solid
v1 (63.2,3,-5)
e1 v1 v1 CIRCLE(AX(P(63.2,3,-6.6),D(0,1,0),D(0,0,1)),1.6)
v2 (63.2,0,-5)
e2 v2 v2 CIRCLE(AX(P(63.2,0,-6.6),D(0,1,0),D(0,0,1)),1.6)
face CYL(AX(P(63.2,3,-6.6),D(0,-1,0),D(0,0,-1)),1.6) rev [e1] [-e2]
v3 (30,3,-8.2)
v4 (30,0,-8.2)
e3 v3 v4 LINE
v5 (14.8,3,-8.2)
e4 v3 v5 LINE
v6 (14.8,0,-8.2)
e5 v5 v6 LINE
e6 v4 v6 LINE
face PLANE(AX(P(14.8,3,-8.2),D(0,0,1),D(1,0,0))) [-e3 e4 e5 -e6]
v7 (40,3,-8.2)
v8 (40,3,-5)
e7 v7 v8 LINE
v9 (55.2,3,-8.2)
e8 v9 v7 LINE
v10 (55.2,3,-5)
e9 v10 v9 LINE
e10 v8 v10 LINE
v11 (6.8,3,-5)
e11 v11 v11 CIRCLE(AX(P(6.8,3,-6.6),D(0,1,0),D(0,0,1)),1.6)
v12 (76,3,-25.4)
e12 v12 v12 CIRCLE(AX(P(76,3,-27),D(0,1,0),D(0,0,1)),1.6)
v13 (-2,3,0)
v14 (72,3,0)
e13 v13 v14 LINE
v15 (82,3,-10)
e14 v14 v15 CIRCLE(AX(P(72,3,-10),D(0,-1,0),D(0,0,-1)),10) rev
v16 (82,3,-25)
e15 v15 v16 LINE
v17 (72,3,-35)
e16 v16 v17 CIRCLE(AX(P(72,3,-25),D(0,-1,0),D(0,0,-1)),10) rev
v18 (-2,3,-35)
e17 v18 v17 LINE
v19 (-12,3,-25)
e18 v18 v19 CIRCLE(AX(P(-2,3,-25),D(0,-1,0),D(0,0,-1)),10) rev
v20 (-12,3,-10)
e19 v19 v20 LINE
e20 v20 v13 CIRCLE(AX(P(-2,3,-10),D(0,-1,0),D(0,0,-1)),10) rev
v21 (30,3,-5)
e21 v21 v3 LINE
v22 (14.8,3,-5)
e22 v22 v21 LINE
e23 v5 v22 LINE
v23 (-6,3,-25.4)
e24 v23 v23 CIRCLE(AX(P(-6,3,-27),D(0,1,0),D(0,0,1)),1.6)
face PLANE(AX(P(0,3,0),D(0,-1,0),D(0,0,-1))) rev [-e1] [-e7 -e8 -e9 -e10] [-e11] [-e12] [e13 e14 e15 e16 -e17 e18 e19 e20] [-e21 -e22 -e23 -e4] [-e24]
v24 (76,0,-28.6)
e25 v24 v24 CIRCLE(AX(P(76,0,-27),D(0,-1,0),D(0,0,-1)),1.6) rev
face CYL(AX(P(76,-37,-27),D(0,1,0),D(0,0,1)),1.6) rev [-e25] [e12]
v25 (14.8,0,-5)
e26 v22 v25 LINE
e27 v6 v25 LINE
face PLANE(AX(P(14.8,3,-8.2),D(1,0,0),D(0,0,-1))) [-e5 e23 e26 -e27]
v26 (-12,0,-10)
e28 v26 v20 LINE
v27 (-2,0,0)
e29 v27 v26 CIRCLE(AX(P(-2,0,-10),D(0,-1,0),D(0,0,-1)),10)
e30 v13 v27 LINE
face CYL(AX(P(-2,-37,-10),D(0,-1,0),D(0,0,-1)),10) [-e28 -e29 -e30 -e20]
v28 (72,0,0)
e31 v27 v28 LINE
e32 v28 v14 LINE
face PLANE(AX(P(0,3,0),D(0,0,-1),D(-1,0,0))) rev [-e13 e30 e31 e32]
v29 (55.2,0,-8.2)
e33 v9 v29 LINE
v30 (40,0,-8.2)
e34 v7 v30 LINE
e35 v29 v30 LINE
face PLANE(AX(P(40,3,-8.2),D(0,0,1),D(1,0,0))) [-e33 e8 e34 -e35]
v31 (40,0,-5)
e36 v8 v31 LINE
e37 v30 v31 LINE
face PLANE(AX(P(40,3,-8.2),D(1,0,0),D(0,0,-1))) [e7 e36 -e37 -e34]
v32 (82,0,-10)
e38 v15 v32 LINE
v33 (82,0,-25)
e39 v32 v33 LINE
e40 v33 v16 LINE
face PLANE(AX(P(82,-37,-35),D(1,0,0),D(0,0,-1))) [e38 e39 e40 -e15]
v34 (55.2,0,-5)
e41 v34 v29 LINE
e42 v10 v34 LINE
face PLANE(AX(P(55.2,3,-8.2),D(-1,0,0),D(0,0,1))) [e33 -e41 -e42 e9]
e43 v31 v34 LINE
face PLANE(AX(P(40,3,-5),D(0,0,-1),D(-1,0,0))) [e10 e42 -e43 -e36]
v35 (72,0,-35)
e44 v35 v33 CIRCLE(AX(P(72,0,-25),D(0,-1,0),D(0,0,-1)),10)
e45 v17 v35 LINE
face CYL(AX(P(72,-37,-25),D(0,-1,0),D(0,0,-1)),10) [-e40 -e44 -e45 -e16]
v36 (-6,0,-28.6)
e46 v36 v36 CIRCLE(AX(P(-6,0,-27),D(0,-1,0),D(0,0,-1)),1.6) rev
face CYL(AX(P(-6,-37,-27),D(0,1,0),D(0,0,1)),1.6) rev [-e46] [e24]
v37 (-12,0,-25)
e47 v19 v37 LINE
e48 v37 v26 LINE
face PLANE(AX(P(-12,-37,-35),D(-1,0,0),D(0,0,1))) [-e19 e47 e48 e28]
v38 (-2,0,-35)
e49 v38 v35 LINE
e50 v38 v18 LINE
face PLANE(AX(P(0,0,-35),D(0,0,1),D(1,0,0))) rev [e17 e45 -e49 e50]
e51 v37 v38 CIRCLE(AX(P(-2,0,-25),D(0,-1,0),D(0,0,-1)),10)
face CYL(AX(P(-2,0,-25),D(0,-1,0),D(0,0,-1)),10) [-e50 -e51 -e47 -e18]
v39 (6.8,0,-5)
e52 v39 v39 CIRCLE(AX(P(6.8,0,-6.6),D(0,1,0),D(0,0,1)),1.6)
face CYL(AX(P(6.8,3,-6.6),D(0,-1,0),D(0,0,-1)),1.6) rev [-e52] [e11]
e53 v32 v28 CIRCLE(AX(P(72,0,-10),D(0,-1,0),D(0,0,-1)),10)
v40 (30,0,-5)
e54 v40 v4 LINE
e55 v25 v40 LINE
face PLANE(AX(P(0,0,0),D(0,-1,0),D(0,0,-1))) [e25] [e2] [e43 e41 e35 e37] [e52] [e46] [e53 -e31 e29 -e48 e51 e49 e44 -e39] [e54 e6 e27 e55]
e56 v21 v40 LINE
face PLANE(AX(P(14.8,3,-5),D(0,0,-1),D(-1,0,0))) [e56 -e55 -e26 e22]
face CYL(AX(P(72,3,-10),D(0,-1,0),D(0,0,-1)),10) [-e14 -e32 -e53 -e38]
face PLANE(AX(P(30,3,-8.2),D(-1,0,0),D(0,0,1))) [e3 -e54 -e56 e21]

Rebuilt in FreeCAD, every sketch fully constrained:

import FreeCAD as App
import Part
import Sketcher

V = App.Vector


def edges_at(feature, points):
    """Names of the edges that pass closest to the given points."""
    edges = feature.Shape.Edges
    near = lambda p: min(range(len(edges)), key=lambda i: edges[i].distToShape(Part.Vertex(*p))[0])
    return sorted({f"Edge{near(p) + 1}" for p in points})


def add_polygon(sketch, points):
    """Adds a closed chain of lines whose ends are joined by coincident constraints."""
    first, n = sketch.GeometryCount, len(points)
    for a, b in zip(points, points[1:] + points[:1]):
        sketch.addGeometry(Part.LineSegment(App.Vector(*a, 0), App.Vector(*b, 0)), False)
    for i in range(n):
        sketch.addConstraint(Sketcher.Constraint("Coincident", first + i, 2, first + (i + 1) % n, 1))

doc = App.newDocument("Part")
body = doc.addObject("PartDesign::Body", "Body")

# Sketch on XZ plane
sketch1 = body.newObject("Sketcher::SketchObject", "Sketch")
sketch1.AttachmentSupport = (doc.getObject("XZ_Plane"), [""])
sketch1.MapMode = "FlatFace"
add_polygon(sketch1, [(0, -109), (0, 0), (70, 0), (70, -109)])  # lines 0-3
sketch1.addGeometry(Part.Circle(V(6.8, -6.6, 0), V(0, 0, 1), 1.6), False)  # 4
add_polygon(sketch1, [(30, -5), (14.8, -5), (14.8, -8.2), (30, -8.2)])  # lines 5-8
add_polygon(sketch1, [(55.2, -5), (40, -5), (40, -8.2), (55.2, -8.2)])  # lines 9-12
sketch1.addGeometry(Part.Circle(V(63.2, -6.6, 0), V(0, 0, 1), 1.6), False)  # 13
sketch1.addGeometry(Part.Circle(V(6.8, -103, 0), V(0, 0, 1), 1.6), False)  # 14
sketch1.addGeometry(Part.Circle(V(63.2, -103, 0), V(0, 0, 1), 1.6), False)  # 15
sketch1.addConstraint([
    Sketcher.Constraint("Vertical", 0),
    Sketcher.Constraint("Horizontal", 1),
    Sketcher.Constraint("Vertical", 2),
    Sketcher.Constraint("Horizontal", 3),
    Sketcher.Constraint("Horizontal", 5),
    Sketcher.Constraint("Vertical", 6),
    Sketcher.Constraint("Horizontal", 7),
    Sketcher.Constraint("Vertical", 8),
    Sketcher.Constraint("Horizontal", 9),
    Sketcher.Constraint("Vertical", 10),
    Sketcher.Constraint("Horizontal", 11),
    Sketcher.Constraint("Vertical", 12),
    Sketcher.Constraint("Coincident", 0, 2, -1, 1),
    Sketcher.Constraint("Equal", 4, 13),
    Sketcher.Constraint("Equal", 13, 14),
    Sketcher.Constraint("Equal", 14, 15),
    Sketcher.Constraint("Horizontal", 4, 3, 13, 3),
    Sketcher.Constraint("Horizontal", 14, 3, 15, 3),
    Sketcher.Constraint("Horizontal", 8, 2, 9, 2),
    Sketcher.Constraint("Horizontal", 7, 2, 10, 2),
    Sketcher.Constraint("Vertical", 4, 3, 14, 3),
    Sketcher.Constraint("Vertical", 13, 3, 15, 3),
    Sketcher.Constraint("Equal", 7, 9),
    Sketcher.Constraint("Diameter", 4, 3.2),
    Sketcher.Constraint("DistanceX", 1, 1, 1, 2, 70.0),
    Sketcher.Constraint("DistanceY", 0, 1, 0, 2, 109.0),
    Sketcher.Constraint("DistanceX", 5, 2, 5, 1, 15.2),
    Sketcher.Constraint("DistanceY", 6, 2, 6, 1, 3.2),
    Sketcher.Constraint("DistanceY", 14, 3, -1, 1, 103.0),
    Sketcher.Constraint("DistanceY", 5, 2, -1, 1, 5.0),
    Sketcher.Constraint("DistanceX", -1, 1, 7, 2, 30.0),
    Sketcher.Constraint("DistanceX", -1, 1, 9, 2, 40.0),
    Sketcher.Constraint("DistanceX", 4, 3, 5, 2, 8.0),
    Sketcher.Constraint("DistanceX", 11, 2, 13, 3, 8.0),
    Sketcher.Constraint("DistanceY", 4, 3, -1, 1, 6.6),
])
pad1 = body.newObject("PartDesign::Pad", "Pad")
pad1.Profile = sketch1
pad1.Length = 3
pad1.Reversed = True

# Sketch on XZ plane
sketch2 = body.newObject("Sketcher::SketchObject", "Sketch001")
sketch2.AttachmentSupport = (doc.getObject("XZ_Plane"), [""])
sketch2.MapMode = "FlatFace"
sketch2.AttachmentOffset = App.Placement(V(0, 0, -3), App.Rotation())
add_polygon(sketch2, [(0, -109), (0, -35), (70, -35), (70, -109)])  # lines 0-3
sketch2.addGeometry(Part.Circle(V(6.8, -103, 0), V(0, 0, 1), 1.6), False)  # 4
sketch2.addGeometry(Part.Circle(V(63.2, -103, 0), V(0, 0, 1), 1.6), False)  # 5
sketch2.addConstraint([
    Sketcher.Constraint("Vertical", 0),
    Sketcher.Constraint("Horizontal", 1),
    Sketcher.Constraint("Vertical", 2),
    Sketcher.Constraint("Horizontal", 3),
    Sketcher.Constraint("Equal", 4, 5),
    Sketcher.Constraint("PointOnObject", 0, 2, -2),
    Sketcher.Constraint("Horizontal", 4, 3, 5, 3),
    Sketcher.Constraint("Diameter", 4, 3.2),
    Sketcher.Constraint("DistanceX", 1, 1, 1, 2, 70.0),
    Sketcher.Constraint("DistanceY", 0, 1, 0, 2, 74.0),
    Sketcher.Constraint("DistanceY", 4, 3, -1, 1, 103.0),
    Sketcher.Constraint("DistanceY", 0, 2, -1, 1, 35.0),
    Sketcher.Constraint("DistanceX", -1, 1, 4, 3, 6.8),
    Sketcher.Constraint("DistanceX", -1, 1, 5, 3, 63.2),
])
pocket1 = body.newObject("PartDesign::Pocket", "Pocket")
pocket1.Profile = sketch2
pocket1.Type = "ThroughAll"
pocket1.Reversed = True

# Sketch on XZ plane
sketch3 = body.newObject("Sketcher::SketchObject", "Sketch002")
sketch3.AttachmentSupport = (doc.getObject("XZ_Plane"), [""])
sketch3.MapMode = "FlatFace"
sketch3.AttachmentOffset = App.Placement(V(0, 0, -3), App.Rotation())
add_polygon(sketch3, [(70, -35), (70, 0), (82, 0), (82, -35)])  # lines 0-3
sketch3.addGeometry(Part.Circle(V(76, -27, 0), V(0, 0, 1), 1.6), False)  # 4
add_polygon(sketch3, [(-12, -35), (-12, 0), (0, 0), (0, -35)])  # lines 5-8
sketch3.addGeometry(Part.Circle(V(-6, -27, 0), V(0, 0, 1), 1.6), False)  # 9
sketch3.addConstraint([
    Sketcher.Constraint("Vertical", 0),
    Sketcher.Constraint("Horizontal", 1),
    Sketcher.Constraint("Vertical", 2),
    Sketcher.Constraint("Horizontal", 3),
    Sketcher.Constraint("Vertical", 5),
    Sketcher.Constraint("Horizontal", 6),
    Sketcher.Constraint("Vertical", 7),
    Sketcher.Constraint("Horizontal", 8),
    Sketcher.Constraint("Coincident", 6, 2, -1, 1),
    Sketcher.Constraint("Equal", 4, 9),
    Sketcher.Constraint("PointOnObject", 0, 2, -1),
    Sketcher.Constraint("Horizontal", 4, 3, 9, 3),
    Sketcher.Constraint("Horizontal", 3, 2, 7, 2),
    Sketcher.Constraint("Equal", 3, 6),
    Sketcher.Constraint("Diameter", 4, 3.2),
    Sketcher.Constraint("DistanceX", 1, 1, 1, 2, 12.0),
    Sketcher.Constraint("DistanceY", 0, 1, 0, 2, 35.0),
    Sketcher.Constraint("DistanceX", -1, 1, 4, 3, 76.0),
    Sketcher.Constraint("DistanceY", 4, 3, -1, 1, 27.0),
    Sketcher.Constraint("DistanceX", 9, 3, -1, 1, 6.0),
    Sketcher.Constraint("DistanceX", -1, 1, 0, 2, 70.0),
])
pad2 = body.newObject("PartDesign::Pad", "Pad001")
pad2.Profile = sketch3
pad2.Length = 3
doc.recompute()

fillet = body.newObject("PartDesign::Fillet", "Fillet")
fillet.Base = (pad2, edges_at(pad2, [
    (82, 1.5, -35),
    (82, 1.5, 0),
    (-12, 1.5, 0),
    (-12, 1.5, -35),
]))
fillet.Radius = 10

doc.recompute()
